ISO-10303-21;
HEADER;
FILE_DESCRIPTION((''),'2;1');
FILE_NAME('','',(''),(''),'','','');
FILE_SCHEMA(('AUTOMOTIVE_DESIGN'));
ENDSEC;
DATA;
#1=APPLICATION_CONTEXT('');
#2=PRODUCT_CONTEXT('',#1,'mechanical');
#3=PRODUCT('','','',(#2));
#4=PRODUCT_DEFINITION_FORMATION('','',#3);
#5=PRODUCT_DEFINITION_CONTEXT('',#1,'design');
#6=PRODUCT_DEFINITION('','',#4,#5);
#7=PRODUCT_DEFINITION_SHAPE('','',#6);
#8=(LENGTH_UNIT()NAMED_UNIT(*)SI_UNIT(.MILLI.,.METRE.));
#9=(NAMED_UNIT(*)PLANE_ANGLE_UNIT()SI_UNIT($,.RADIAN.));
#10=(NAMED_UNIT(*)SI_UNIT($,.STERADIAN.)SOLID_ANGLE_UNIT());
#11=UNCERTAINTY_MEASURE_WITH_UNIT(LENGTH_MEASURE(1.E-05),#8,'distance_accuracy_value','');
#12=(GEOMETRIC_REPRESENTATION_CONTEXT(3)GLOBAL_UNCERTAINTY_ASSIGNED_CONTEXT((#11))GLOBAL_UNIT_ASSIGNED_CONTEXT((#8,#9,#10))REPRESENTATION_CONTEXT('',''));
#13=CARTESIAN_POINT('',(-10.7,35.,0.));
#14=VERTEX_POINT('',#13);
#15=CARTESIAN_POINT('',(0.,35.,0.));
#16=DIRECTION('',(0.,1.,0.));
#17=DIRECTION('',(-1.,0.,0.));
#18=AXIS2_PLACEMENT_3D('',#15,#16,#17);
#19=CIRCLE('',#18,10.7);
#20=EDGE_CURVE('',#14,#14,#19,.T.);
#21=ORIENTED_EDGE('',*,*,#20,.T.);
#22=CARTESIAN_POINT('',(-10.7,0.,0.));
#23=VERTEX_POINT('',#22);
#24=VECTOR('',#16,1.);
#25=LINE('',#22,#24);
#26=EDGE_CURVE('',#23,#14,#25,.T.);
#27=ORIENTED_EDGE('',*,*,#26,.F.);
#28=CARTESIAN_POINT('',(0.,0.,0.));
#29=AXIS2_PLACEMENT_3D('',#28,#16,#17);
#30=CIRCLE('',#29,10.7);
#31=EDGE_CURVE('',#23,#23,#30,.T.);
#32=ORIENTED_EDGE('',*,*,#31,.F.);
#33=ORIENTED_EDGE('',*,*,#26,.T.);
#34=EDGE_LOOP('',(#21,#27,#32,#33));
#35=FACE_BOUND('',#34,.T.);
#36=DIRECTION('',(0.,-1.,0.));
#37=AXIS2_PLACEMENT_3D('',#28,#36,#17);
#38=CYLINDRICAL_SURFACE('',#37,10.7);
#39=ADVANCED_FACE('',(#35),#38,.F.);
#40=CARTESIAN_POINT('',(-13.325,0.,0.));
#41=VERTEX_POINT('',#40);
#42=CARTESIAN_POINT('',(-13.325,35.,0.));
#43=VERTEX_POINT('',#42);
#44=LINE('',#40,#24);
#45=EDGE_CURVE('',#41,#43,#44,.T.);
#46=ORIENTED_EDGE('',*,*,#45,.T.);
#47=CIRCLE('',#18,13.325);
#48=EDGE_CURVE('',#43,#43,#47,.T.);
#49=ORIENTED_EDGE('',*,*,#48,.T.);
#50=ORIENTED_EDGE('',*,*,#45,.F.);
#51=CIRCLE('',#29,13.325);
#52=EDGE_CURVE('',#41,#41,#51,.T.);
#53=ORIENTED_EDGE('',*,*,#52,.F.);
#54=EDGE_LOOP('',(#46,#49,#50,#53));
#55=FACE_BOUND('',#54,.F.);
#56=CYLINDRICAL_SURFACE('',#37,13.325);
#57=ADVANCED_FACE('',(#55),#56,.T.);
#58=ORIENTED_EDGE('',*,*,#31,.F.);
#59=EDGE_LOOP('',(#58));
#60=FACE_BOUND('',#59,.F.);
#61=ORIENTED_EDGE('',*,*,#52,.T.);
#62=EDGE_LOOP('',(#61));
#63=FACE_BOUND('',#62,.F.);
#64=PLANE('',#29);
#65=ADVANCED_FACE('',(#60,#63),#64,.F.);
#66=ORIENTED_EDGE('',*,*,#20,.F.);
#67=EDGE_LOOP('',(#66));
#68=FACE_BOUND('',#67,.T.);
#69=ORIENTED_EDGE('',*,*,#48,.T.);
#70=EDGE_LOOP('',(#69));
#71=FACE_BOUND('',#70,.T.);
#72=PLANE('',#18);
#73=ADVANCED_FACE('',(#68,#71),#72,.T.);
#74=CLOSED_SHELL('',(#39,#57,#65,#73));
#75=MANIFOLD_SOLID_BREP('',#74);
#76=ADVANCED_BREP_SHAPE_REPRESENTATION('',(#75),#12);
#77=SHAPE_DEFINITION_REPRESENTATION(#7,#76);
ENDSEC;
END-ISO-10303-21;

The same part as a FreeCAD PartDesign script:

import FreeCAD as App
import Part
import Sketcher

doc = App.newDocument("Part")
body = doc.addObject("PartDesign::Body", "Body")

# Sketch on XZ plane
sketch1 = body.newObject("Sketcher::SketchObject", "Sketch")
sketch1.AttachmentSupport = (doc.getObject("XZ_Plane"), [""])
sketch1.MapMode = "FlatFace"
sketch1.addGeometry(Part.Circle(App.Vector(0, 0, 0), App.Vector(0, 0, 1), 13.325), False)
sketch1.addGeometry(Part.Circle(App.Vector(0, 0, 0), App.Vector(0, 0, 1), 10.7), False)
sketch1.addConstraint(Sketcher.Constraint("Coincident", 0, 3, -1, 1))
sketch1.addConstraint(Sketcher.Constraint("Coincident", 1, 3, -1, 1))
sketch1.addConstraint(Sketcher.Constraint("Diameter", 1, 21.4))
sketch1.addConstraint(Sketcher.Constraint("Diameter", 0, 26.65))
pad1 = body.newObject("PartDesign::Pad", "Pad")
pad1.Profile = sketch1
pad1.Length = 35
pad1.Reversed = True

doc.recompute()
